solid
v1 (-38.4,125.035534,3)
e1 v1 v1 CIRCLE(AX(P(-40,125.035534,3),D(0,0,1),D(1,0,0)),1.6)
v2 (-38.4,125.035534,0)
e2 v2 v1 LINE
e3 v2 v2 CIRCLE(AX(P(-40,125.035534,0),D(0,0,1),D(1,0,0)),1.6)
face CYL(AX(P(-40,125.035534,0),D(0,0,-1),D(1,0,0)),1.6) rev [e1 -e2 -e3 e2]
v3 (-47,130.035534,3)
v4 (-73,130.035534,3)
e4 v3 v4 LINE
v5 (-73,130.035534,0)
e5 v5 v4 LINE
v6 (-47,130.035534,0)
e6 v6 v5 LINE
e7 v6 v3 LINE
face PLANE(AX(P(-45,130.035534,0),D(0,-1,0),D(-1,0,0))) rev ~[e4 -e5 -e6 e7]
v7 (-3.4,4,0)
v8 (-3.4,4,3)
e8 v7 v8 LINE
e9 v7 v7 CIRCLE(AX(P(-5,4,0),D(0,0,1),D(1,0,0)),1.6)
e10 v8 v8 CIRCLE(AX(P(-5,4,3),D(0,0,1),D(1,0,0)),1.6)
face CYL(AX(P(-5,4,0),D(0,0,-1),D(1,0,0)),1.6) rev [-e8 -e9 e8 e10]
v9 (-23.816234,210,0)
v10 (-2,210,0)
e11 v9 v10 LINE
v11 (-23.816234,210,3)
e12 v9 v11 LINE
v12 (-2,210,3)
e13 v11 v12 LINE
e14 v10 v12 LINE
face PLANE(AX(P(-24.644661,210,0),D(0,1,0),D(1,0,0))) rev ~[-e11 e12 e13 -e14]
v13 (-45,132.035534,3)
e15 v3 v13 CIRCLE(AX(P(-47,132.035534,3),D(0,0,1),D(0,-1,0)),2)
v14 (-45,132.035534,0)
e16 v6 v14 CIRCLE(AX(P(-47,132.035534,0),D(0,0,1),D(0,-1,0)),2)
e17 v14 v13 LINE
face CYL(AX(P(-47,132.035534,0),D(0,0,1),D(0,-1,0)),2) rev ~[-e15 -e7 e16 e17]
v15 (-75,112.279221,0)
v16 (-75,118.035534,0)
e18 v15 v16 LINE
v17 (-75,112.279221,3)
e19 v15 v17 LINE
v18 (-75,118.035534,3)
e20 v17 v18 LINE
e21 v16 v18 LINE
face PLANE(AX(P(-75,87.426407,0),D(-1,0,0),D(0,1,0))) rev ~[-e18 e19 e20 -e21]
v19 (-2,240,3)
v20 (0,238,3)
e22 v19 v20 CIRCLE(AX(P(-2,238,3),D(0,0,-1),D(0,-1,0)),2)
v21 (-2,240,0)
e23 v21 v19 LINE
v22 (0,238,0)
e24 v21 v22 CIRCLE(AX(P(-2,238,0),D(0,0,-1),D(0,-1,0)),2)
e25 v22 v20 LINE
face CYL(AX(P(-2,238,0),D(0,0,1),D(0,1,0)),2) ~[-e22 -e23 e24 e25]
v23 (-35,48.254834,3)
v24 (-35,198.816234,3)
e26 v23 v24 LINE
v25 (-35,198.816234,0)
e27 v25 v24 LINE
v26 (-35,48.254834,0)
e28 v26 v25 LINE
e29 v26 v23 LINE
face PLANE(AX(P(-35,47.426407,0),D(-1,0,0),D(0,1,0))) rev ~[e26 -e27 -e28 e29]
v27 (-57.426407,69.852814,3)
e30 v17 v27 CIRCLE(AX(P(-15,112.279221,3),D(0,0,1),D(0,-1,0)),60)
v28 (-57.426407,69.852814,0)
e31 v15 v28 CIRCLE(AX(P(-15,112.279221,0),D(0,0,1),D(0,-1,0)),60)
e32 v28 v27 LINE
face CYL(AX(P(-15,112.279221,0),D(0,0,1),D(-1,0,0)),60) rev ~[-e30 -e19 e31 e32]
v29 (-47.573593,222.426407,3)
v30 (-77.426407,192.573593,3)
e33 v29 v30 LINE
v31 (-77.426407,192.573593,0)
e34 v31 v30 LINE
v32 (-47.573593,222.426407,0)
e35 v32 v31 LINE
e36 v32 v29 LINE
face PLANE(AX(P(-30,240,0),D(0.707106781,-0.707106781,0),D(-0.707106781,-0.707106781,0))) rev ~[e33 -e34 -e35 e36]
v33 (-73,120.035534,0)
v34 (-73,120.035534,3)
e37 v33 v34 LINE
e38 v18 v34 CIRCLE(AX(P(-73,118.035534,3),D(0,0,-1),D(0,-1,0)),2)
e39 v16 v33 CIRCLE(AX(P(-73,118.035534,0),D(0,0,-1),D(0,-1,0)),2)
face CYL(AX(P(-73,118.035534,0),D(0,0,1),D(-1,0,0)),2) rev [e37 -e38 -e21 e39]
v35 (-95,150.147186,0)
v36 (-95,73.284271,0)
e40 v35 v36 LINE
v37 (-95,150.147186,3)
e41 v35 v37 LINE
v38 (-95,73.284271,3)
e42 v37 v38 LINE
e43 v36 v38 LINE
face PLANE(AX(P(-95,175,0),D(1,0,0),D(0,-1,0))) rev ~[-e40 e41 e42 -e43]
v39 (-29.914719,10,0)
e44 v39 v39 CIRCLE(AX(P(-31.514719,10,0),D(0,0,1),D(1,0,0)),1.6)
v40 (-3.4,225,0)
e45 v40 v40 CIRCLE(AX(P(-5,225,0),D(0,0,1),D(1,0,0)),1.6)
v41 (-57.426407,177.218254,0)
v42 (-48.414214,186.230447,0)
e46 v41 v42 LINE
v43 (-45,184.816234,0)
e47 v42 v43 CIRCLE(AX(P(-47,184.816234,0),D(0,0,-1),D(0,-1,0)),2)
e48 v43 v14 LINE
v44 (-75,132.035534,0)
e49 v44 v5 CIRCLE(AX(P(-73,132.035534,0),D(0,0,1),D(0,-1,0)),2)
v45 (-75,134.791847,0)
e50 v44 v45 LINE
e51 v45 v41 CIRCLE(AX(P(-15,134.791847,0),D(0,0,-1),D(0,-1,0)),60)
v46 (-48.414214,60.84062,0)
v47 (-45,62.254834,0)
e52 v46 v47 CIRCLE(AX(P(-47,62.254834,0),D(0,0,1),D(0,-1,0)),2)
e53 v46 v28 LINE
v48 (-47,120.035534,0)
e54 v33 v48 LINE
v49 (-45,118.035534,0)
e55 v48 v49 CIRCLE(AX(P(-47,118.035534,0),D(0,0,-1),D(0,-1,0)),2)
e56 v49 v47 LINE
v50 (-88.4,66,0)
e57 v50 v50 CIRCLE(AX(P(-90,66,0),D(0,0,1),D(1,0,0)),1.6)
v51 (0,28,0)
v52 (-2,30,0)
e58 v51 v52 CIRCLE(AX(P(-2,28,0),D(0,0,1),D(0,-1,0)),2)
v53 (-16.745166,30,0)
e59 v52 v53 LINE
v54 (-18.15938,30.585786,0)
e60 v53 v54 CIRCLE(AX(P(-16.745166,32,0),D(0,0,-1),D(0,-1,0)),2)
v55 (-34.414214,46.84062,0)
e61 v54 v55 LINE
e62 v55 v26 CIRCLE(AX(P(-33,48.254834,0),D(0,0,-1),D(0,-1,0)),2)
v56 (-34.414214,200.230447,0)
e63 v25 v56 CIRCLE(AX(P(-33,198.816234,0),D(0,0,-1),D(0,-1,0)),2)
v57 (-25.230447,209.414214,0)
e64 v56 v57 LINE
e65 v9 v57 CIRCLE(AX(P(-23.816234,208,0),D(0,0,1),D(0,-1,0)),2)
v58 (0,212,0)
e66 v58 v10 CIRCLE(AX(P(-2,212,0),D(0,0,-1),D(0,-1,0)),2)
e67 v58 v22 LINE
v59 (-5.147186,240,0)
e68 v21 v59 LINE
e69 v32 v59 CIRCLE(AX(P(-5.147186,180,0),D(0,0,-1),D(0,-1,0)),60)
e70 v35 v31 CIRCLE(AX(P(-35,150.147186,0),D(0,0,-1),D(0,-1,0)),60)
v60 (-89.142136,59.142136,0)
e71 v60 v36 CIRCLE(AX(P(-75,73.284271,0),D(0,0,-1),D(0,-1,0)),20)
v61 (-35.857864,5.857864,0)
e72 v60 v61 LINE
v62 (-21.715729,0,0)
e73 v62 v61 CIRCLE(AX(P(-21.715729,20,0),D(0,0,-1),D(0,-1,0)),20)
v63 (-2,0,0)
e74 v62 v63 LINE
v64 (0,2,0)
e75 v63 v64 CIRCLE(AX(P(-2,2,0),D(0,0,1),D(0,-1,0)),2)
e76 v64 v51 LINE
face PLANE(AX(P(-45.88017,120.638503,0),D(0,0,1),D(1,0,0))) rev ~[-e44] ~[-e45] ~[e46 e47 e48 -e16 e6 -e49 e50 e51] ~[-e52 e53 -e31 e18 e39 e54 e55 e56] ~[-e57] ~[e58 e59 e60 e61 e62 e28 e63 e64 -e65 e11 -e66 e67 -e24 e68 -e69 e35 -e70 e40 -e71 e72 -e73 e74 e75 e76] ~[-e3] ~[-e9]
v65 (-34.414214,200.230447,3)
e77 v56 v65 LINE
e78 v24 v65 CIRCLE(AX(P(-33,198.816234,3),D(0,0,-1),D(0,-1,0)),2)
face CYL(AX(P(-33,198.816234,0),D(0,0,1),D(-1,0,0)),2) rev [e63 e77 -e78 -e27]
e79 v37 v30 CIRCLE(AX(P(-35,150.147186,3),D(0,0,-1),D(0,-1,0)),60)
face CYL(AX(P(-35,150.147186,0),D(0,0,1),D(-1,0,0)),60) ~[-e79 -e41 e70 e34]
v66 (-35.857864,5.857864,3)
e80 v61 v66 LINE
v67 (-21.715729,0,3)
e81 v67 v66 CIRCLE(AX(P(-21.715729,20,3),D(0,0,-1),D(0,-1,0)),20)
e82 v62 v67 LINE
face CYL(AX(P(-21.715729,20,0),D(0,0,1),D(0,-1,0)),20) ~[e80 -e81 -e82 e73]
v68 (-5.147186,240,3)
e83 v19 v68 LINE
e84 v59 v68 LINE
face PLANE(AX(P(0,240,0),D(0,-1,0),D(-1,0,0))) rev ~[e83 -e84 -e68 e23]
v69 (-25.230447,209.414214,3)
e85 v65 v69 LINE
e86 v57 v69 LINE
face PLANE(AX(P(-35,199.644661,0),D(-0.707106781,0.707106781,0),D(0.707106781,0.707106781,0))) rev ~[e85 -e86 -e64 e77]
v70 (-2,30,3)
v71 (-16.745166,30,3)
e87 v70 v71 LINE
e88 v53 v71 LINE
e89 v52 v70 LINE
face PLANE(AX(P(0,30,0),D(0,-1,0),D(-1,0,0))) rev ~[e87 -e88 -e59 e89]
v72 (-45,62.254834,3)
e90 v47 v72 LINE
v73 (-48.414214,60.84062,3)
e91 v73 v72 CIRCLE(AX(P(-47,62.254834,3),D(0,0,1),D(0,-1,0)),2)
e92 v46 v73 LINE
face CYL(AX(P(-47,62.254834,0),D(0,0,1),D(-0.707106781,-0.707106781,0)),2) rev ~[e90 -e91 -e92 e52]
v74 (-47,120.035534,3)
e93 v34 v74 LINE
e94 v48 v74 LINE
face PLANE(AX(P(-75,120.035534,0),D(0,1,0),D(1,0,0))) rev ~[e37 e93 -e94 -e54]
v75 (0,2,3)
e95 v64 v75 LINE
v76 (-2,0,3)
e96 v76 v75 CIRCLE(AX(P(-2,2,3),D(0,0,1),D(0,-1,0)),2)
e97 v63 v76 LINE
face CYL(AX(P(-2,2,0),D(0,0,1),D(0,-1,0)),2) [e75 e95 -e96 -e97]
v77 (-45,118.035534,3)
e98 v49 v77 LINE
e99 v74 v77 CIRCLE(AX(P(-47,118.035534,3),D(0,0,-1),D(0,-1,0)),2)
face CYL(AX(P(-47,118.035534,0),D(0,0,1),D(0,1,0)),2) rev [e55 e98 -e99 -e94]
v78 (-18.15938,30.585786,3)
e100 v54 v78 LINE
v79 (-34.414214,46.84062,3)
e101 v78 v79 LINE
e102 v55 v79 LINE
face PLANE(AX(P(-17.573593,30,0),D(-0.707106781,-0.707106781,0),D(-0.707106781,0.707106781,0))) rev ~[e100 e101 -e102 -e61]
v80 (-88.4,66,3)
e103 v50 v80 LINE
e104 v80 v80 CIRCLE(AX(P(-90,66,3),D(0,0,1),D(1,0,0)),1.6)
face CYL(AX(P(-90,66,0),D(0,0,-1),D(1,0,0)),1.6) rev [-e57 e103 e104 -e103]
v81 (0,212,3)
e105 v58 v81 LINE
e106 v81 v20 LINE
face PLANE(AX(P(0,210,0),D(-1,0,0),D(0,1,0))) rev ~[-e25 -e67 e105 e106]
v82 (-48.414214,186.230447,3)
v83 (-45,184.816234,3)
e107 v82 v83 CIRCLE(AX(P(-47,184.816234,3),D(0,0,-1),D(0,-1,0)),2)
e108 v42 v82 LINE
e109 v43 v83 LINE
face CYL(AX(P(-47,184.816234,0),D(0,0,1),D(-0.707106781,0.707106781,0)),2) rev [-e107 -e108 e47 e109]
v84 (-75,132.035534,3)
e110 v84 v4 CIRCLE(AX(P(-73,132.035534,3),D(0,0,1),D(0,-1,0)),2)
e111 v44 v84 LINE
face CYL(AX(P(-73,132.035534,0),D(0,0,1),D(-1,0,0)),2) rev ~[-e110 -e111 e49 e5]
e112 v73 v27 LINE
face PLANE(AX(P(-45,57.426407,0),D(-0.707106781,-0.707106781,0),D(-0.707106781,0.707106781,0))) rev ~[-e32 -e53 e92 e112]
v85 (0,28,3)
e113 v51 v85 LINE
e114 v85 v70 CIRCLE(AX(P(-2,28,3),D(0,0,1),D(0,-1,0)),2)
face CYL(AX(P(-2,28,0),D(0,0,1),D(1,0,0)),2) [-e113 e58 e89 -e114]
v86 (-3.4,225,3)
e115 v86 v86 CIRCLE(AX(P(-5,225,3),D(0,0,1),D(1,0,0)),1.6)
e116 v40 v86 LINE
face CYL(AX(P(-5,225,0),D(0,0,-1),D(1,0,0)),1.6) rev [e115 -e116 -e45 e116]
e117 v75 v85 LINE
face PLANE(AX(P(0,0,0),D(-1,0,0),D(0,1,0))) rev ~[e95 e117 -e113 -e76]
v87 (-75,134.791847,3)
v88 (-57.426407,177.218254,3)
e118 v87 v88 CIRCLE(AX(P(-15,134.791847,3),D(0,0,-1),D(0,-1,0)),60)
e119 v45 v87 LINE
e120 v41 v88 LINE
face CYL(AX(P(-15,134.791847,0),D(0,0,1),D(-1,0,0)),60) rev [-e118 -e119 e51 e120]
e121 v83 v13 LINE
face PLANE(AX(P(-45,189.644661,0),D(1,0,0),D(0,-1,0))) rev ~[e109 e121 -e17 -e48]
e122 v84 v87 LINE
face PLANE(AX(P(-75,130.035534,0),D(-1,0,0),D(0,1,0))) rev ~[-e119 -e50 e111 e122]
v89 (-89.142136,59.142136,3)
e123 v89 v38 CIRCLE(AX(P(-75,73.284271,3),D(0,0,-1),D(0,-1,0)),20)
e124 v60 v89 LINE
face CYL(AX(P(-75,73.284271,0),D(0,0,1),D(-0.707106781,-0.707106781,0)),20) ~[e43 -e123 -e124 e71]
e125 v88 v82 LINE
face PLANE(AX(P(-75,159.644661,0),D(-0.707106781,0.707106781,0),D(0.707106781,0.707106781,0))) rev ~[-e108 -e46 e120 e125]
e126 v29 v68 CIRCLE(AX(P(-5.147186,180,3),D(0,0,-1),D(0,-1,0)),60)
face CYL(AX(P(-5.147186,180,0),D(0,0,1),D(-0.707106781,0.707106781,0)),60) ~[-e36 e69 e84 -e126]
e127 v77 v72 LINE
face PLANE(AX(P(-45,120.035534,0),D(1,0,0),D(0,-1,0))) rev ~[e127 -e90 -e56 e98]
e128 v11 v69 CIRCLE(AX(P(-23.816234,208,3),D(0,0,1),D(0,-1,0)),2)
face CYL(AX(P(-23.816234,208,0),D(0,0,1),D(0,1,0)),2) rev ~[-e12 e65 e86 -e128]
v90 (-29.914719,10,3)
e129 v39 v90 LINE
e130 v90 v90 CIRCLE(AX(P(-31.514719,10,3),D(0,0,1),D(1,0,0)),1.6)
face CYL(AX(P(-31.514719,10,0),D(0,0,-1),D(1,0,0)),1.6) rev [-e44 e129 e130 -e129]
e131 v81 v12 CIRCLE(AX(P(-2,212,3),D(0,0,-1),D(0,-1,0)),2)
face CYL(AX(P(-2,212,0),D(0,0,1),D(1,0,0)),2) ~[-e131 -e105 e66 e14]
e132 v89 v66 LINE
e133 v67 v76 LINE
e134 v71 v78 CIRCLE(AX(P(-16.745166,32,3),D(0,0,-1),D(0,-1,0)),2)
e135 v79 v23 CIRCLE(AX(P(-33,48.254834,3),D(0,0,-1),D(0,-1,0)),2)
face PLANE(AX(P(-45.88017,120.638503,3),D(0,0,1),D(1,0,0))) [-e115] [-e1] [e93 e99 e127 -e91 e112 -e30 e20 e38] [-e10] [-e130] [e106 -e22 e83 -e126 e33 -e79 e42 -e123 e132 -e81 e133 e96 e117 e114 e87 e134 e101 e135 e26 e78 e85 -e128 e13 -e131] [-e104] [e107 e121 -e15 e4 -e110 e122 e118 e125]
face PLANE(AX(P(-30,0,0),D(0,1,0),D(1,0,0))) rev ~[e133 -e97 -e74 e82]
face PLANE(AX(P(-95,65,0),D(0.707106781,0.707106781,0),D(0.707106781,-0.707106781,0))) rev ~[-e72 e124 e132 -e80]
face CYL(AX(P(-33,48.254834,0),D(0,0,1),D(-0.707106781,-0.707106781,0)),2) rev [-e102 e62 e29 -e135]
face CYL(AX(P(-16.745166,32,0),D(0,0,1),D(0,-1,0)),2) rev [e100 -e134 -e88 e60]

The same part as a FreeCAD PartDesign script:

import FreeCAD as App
import Part
import Sketcher

V = App.Vector
Q = App.Units.Quantity


def edges_at(feature, points):
    """Names of the edges that pass closest to the given points."""
    edges = feature.Shape.Edges
    near = lambda p: min(range(len(edges)), key=lambda i: edges[i].distToShape(Part.Vertex(*p))[0])
    return sorted({f"Edge{near(p) + 1}" for p in points})


def add_polygon(sketch, points):
    """Adds a closed chain of lines whose ends are joined by coincident constraints."""
    first, n = sketch.GeometryCount, len(points)
    for a, b in zip(points, points[1:] + points[:1]):
        sketch.addGeometry(Part.LineSegment(App.Vector(*a, 0), App.Vector(*b, 0)), False)
    for i in range(n):
        sketch.addConstraint(Sketcher.Constraint("Coincident", first + i, 2, first + (i + 1) % n, 1))

doc = App.newDocument("Part")
params = doc.addObject("Spreadsheet::Sheet", "Params")
for row, (alias, value) in enumerate([
    ("sketch1_diameter", "3.2 mm"),
    ("sketch1_width", "30 mm"),
    ("sketch1_height", "110 mm"),
    ("pad1_length", "3 mm"),
    ("fillet_radius", "60 mm"),
    ("fillet2_radius", "2 mm"),
    ("fillet3_radius", "20 mm"),
    ("fillet4_radius", "2 mm"),
], start=1):
    params.set(f"A{row}", alias)
    params.set(f"B{row}", "=" + value)
    params.setAlias(f"B{row}", alias)

body = doc.addObject("PartDesign::Body", "Body")

sketch1 = body.newObject("Sketcher::SketchObject", "Sketch")
sketch1.AttachmentSupport = (doc.getObject("XY_Plane"), [""])
sketch1.MapMode = "FlatFace"
add_polygon(sketch1, [(-30, 0), (0, 0), (0, 30), (-17.6, 30), (-35, 47.4), (-35, 199.6), (-24.6, 210), (0, 210), (0, 240), (-30, 240), (-95, 175), (-95, 65)])
sketch1.addGeometry(Part.Circle(V(-90, 66, 0), V(0, 0, 1), 1.6), False)
add_polygon(sketch1, [(-75, 120), (-45, 120), (-45, 57.4), (-75, 87.4)])
sketch1.addGeometry(Part.Circle(V(-31.5, 10, 0), V(0, 0, 1), 1.6), False)
sketch1.addGeometry(Part.Circle(V(-5, 4, 0), V(0, 0, 1), 1.6), False)
add_polygon(sketch1, [(-75, 130), (-75, 159.6), (-45, 189.6), (-45, 130)])
sketch1.addGeometry(Part.Circle(V(-40, 125, 0), V(0, 0, 1), 1.6), False)
sketch1.addGeometry(Part.Circle(V(-5, 225, 0), V(0, 0, 1), 1.6), False)
sketch1.addConstraint([
    Sketcher.Constraint("Horizontal", 0),
    Sketcher.Constraint("Vertical", 1),
    Sketcher.Constraint("Horizontal", 2),
    Sketcher.Constraint("Vertical", 4),
    Sketcher.Constraint("Horizontal", 6),
    Sketcher.Constraint("Vertical", 7),
    Sketcher.Constraint("Horizontal", 8),
    Sketcher.Constraint("Vertical", 10),
    Sketcher.Constraint("Horizontal", 13),
    Sketcher.Constraint("Vertical", 14),
    Sketcher.Constraint("Vertical", 16),
    Sketcher.Constraint("Vertical", 19),
    Sketcher.Constraint("Vertical", 21),
    Sketcher.Constraint("Horizontal", 22),
    Sketcher.Constraint("Coincident", 0, 2, -1, 1),
    Sketcher.Constraint("Equal", 12, 17),
    Sketcher.Constraint("Equal", 17, 18),
    Sketcher.Constraint("Equal", 18, 23),
    Sketcher.Constraint("Equal", 23, 24),
    Sketcher.Constraint("PointOnObject", 6, 2, -2),
    Sketcher.Constraint("Perpendicular", 3, 5),
    Sketcher.Constraint("Parallel", 5, 9),
    Sketcher.Constraint("Perpendicular", 9, 11),
    Sketcher.Constraint("Parallel", 11, 15),
    Sketcher.Constraint("Perpendicular", 15, 20),
    Sketcher.Constraint("Vertical", 18, 3, 24, 3),
    Sketcher.Constraint("Vertical", 8, 2, 11, 2),
    Sketcher.Constraint("Vertical", 16, 2, 19, 2),
    Sketcher.Constraint("Vertical", 14, 2, 20, 2),
    Sketcher.Constraint("Equal", 8, 13),
    Sketcher.Constraint("Equal", 22, 1),
    Sketcher.Constraint("Equal", 1, 7),
    Sketcher.Constraint("Equal", 9, 11),
    Sketcher.Constraint("Diameter", 12, Q("3.2 mm")),
    Sketcher.Constraint("DistanceX", 0, 1, 0, 2, Q("30 mm")),
    Sketcher.Constraint("DistanceY", 10, 2, 10, 1, Q("110 mm")),
    Sketcher.Constraint("DistanceX", 12, 3, -1, 1, Q("90 mm")),
    Sketcher.Constraint("DistanceY", -1, 1, 12, 3, Q("66 mm")),
    Sketcher.Constraint("DistanceY", -1, 1, 17, 3, Q("10 mm")),
    Sketcher.Constraint("DistanceX", 18, 3, -1, 1, Q("5 mm")),
    Sketcher.Constraint("DistanceY", -1, 1, 18, 3, Q("4 mm")),
    Sketcher.Constraint("DistanceX", 23, 3, -1, 1, Q("40 mm")),
    Sketcher.Constraint("DistanceY", -1, 1, 24, 3, Q("225 mm")),
    Sketcher.Constraint("DistanceX", 3, 2, -1, 1, Q("35 mm")),
    Sketcher.Constraint("DistanceY", -1, 1, 5, 2, Q("210 mm")),
    Sketcher.Constraint("DistanceX", 13, 2, -1, 1, Q("45 mm")),
    Sketcher.Constraint("DistanceY", 13, 2, 23, 3, Q("5 mm")),
    Sketcher.Constraint("DistanceY", 3, 2, 14, 2, Q("10 mm")),
    Sketcher.Constraint("DistanceY", 19, 2, 4, 2, Q("40 mm")),
    Sketcher.Constraint("DistanceY", 23, 3, 21, 2, Q("5 mm")),
    Sketcher.Constraint("DistanceX", 6, 1, 6, 2, Q("24.644661 mm")),
    Sketcher.Constraint("Distance", 3, Q("24.644661 mm")),
    Sketcher.Constraint("DistanceY", 14, 2, 14, 1, Q("62.609127 mm")),
    Sketcher.Constraint("DistanceX", 17, 3, -1, 1, Q("31.514719 mm")),
])
sketch1.setExpression("Constraints[53]", "Params.sketch1_diameter")
sketch1.setExpression("Constraints[54]", "Params.sketch1_width")
sketch1.setExpression("Constraints[55]", "Params.sketch1_height")
pad1 = body.newObject("PartDesign::Pad", "Pad")
pad1.Profile = sketch1
pad1.setExpression("Length", "Params.pad1_length")
doc.recompute()

fillet = body.newObject("PartDesign::Fillet", "Fillet")
fillet.Base = (pad1, edges_at(pad1, [
    (-75, 159.645, 1.5),
    (-95, 175, 1.5),
    (-30, 240, 1.5),
    (-75, 87.426, 1.5),
]))
fillet.setExpression("Radius", "Params.fillet_radius")
doc.recompute()

fillet2 = body.newObject("PartDesign::Fillet", "Fillet001")
fillet2.Base = (fillet, edges_at(fillet, [
    (-17.574, 30, 1.5),
    (0, 30, 1.5),
    (0, 0, 1.5),
    (0, 240, 1.5),
    (0, 210, 1.5),
    (-24.645, 210, 1.5),
    (-35, 199.645, 1.5),
    (-35, 47.426, 1.5),
]))
fillet2.setExpression("Radius", "Params.fillet2_radius")
doc.recompute()

fillet3 = body.newObject("PartDesign::Fillet", "Fillet002")
fillet3.Base = (fillet2, edges_at(fillet2, [(-30, 0, 1.5), (-95, 65, 1.5)]))
fillet3.setExpression("Radius", "Params.fillet3_radius")
doc.recompute()

fillet4 = body.newObject("PartDesign::Fillet", "Fillet003")
fillet4.Base = (fillet3, edges_at(fillet3, [
    (-45, 189.645, 1.5),
    (-75, 130.036, 1.5),
    (-45, 130.036, 1.5),
    (-75, 120.036, 1.5),
    (-45, 57.426, 1.5),
    (-45, 120.036, 1.5),
]))
fillet4.setExpression("Radius", "Params.fillet4_radius")

doc.recompute()
